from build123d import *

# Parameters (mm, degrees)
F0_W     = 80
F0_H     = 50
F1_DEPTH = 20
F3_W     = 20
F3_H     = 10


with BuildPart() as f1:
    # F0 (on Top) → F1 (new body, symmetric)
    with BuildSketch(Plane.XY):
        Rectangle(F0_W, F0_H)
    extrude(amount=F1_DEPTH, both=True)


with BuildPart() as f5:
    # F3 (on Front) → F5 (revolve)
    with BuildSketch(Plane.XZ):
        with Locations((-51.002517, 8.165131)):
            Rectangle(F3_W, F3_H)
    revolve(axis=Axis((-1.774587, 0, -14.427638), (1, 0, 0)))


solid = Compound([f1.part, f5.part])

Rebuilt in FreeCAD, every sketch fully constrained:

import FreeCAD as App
import Part
import Sketcher


def add_polygon(sketch, points):
    """Adds a closed chain of lines whose ends are joined by coincident constraints."""
    first, n = sketch.GeometryCount, len(points)
    for a, b in zip(points, points[1:] + points[:1]):
        sketch.addGeometry(Part.LineSegment(App.Vector(*a, 0), App.Vector(*b, 0)), False)
    for i in range(n):
        sketch.addConstraint(Sketcher.Constraint("Coincident", first + i, 2, first + (i + 1) % n, 1))

doc = App.newDocument("Part")
params = doc.addObject("Spreadsheet::Sheet", "Params")
for row, (alias, value) in enumerate([
    ("sketch1_width", "80 mm"),
    ("sketch1_height", "50 mm"),
    ("pad1_length", "40 mm"),
    ("sketch2_width", "20 mm"),
    ("sketch2_height", "10 mm"),
    ("revolution_angle", "360 deg"),
], start=1):
    params.set(f"A{row}", alias)
    params.set(f"B{row}", "=" + value)
    params.setAlias(f"B{row}", alias)

body = doc.addObject("PartDesign::Body", "Body")

# Sketch on XY plane
sketch1 = body.newObject("Sketcher::SketchObject", "Sketch")
sketch1.AttachmentSupport = (doc.getObject("XY_Plane"), [""])
sketch1.MapMode = "FlatFace"
add_polygon(sketch1, [(-40, 25), (-40, -25), (40, -25), (40, 25)])  # lines 0-3
sketch1.addConstraint([
    Sketcher.Constraint("Vertical", 0),
    Sketcher.Constraint("Horizontal", 1),
    Sketcher.Constraint("Vertical", 2),
    Sketcher.Constraint("Horizontal", 3),
    Sketcher.Constraint("Symmetric", 0, 2, 2, 2, -1, 1),
    Sketcher.Constraint("DistanceX", 1, 1, 1, 2, 80.0),
    Sketcher.Constraint("DistanceY", 0, 2, 0, 1, 50.0),
])
sketch1.setExpression("Constraints[9]", "Params.sketch1_width")
sketch1.setExpression("Constraints[10]", "Params.sketch1_height")
pad1 = body.newObject("PartDesign::Pad", "Pad")
pad1.Profile = sketch1
pad1.setExpression("Length", "Params.pad1_length")
pad1.Midplane = True
body2 = doc.addObject("PartDesign::Body", "Body001")

# Sketch on XZ plane
sketch2 = body2.newObject("Sketcher::SketchObject", "Sketch001")
sketch2.AttachmentSupport = (doc.getObject("XZ_Plane001"), [""])
sketch2.MapMode = "FlatFace"
add_polygon(sketch2, [(-61.002517, 13.165131), (-61.002517, 3.165131), (-41.002517, 3.165131), (-41.002517, 13.165131)])  # lines 0-3
sketch2.addGeometry(Part.LineSegment(App.Vector(-61.002517, -14.427638, 0), App.Vector(-41.002517, -14.427638, 0)), True)  # axis
sketch2.addConstraint([
    Sketcher.Constraint("Vertical", 0),
    Sketcher.Constraint("Horizontal", 1),
    Sketcher.Constraint("Vertical", 2),
    Sketcher.Constraint("Horizontal", 3),
    Sketcher.Constraint("Horizontal", 4),
    Sketcher.Constraint("Vertical", 3, 2, 4, 1),
    Sketcher.Constraint("Vertical", 2, 2, 4, 2),
    Sketcher.Constraint("DistanceX", 1, 1, 1, 2, 20.0),
    Sketcher.Constraint("DistanceY", 0, 2, 0, 1, 10.0),
    Sketcher.Constraint("DistanceY", -1, 1, 0, 2, 3.165131),
    Sketcher.Constraint("DistanceY", 4, 1, 0, 2, 17.592769),
    Sketcher.Constraint("DistanceX", 0, 2, -1, 1, 61.002517),
])
sketch2.setExpression("Constraints[11]", "Params.sketch2_width")
sketch2.setExpression("Constraints[12]", "Params.sketch2_height")
revolution = body2.newObject("PartDesign::Revolution", "Revolution")
revolution.Profile = sketch2
revolution.ReferenceAxis = (sketch2, ["Axis0"])
revolution.setExpression("Angle", "Params.revolution_angle")

doc.recompute()
